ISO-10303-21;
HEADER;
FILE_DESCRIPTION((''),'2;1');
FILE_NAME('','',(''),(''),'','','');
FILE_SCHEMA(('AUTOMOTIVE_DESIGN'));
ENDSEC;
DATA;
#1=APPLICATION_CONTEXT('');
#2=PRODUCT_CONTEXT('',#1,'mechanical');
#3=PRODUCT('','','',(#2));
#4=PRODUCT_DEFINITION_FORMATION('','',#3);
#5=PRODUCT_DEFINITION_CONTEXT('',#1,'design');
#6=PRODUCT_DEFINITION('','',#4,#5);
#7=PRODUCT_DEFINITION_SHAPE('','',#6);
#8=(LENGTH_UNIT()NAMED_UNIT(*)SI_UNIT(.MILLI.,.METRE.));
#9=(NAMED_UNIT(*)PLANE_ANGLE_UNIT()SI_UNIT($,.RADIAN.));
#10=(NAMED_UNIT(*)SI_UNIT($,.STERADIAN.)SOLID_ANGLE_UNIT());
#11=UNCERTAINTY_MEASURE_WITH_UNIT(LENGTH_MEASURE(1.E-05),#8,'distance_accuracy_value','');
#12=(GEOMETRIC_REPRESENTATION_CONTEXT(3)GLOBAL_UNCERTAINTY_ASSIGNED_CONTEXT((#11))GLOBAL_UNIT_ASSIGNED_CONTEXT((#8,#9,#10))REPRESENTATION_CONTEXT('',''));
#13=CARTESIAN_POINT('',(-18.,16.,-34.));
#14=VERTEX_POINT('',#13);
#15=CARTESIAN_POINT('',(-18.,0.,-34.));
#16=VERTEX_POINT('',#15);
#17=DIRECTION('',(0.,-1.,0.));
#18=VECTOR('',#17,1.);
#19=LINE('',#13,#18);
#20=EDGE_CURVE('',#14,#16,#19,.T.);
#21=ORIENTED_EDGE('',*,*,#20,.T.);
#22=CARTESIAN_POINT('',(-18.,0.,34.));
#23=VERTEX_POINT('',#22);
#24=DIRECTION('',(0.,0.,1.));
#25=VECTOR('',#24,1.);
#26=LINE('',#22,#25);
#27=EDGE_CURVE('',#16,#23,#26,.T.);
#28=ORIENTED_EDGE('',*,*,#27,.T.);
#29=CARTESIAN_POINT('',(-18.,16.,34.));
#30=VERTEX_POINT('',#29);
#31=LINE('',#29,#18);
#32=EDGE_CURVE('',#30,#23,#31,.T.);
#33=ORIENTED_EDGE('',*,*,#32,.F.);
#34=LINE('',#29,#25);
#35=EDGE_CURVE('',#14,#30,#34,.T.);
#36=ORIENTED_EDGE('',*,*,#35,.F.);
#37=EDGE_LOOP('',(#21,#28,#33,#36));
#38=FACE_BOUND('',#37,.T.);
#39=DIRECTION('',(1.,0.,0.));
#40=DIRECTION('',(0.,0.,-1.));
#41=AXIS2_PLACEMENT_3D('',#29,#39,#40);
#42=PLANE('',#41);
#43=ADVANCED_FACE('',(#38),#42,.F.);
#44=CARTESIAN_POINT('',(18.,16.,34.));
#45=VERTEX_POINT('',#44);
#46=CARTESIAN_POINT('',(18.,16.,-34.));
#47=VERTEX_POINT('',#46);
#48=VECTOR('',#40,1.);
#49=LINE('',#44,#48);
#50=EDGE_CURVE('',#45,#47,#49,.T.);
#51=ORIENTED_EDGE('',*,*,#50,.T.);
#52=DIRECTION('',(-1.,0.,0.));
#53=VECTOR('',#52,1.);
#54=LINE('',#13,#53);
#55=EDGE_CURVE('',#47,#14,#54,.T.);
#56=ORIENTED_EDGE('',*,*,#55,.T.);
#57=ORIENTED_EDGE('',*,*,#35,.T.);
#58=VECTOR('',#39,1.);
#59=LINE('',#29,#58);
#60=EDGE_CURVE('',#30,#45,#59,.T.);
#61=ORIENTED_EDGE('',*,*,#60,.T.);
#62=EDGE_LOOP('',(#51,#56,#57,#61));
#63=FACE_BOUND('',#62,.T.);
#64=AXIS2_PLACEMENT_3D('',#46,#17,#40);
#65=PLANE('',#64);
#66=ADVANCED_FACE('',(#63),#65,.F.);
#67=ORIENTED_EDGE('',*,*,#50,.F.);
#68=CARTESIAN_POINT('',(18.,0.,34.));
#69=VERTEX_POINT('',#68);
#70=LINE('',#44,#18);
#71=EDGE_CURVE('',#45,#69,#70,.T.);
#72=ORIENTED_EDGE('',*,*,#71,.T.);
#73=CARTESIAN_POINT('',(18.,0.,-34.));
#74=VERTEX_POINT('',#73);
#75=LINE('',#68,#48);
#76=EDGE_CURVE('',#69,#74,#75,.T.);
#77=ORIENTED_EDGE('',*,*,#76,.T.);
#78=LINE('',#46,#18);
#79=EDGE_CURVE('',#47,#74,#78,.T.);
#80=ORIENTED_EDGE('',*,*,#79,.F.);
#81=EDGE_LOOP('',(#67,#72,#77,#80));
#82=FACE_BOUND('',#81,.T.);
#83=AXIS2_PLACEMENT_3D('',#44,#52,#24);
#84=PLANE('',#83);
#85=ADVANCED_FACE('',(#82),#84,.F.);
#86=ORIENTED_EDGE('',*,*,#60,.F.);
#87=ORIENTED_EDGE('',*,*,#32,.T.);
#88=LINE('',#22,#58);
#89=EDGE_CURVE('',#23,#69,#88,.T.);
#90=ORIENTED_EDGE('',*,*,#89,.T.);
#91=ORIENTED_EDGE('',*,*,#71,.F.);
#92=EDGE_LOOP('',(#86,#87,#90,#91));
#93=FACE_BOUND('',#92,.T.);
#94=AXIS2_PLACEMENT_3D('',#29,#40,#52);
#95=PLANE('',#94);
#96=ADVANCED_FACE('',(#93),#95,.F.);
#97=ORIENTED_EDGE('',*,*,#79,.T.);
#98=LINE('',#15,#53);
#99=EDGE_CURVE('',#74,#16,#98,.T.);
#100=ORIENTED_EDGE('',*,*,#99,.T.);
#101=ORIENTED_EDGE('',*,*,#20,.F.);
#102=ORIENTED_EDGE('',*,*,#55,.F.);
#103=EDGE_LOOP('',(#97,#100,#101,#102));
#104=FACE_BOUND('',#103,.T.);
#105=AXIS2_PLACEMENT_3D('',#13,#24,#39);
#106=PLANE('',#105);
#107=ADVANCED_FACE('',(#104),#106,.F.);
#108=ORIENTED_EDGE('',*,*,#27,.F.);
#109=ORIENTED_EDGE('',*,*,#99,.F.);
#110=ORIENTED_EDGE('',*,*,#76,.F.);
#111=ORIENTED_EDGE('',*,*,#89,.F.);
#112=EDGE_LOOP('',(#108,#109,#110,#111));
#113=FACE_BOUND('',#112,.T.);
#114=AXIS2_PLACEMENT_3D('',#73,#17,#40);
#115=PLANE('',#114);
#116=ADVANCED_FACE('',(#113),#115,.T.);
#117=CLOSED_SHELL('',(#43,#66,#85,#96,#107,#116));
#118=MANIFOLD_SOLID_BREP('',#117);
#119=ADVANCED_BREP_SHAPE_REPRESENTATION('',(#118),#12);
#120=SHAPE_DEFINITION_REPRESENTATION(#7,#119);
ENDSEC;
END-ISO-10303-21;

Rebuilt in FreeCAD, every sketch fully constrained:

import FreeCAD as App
import Part
import Sketcher

V = App.Vector
Q = App.Units.Quantity

doc = App.newDocument("Part")
body = doc.addObject("PartDesign::Body", "Body")

# Sketch on XZ plane
sketch1 = body.newObject("Sketcher::SketchObject", "Sketch")
sketch1.AttachmentSupport = (doc.getObject("XZ_Plane"), [""])
sketch1.MapMode = "FlatFace"
sketch1.addGeometry([
    Part.LineSegment(V(-18, -34, 0), V(-18, 34, 0)),
    Part.LineSegment(V(-18, 34, 0), V(18, 34, 0)),
    Part.LineSegment(V(18, 34, 0), V(18, -34, 0)),
    Part.LineSegment(V(18, -34, 0), V(-18, -34, 0)),
], False)
sketch1.addConstraint([
    Sketcher.Constraint("Coincident", 0, 2, 1, 1),
    Sketcher.Constraint("Coincident", 1, 2, 2, 1),
    Sketcher.Constraint("Coincident", 2, 2, 3, 1),
    Sketcher.Constraint("Coincident", 3, 2, 0, 1),
    Sketcher.Constraint("Vertical", 0),
    Sketcher.Constraint("Horizontal", 1),
    Sketcher.Constraint("Vertical", 2),
    Sketcher.Constraint("Horizontal", 3),
    Sketcher.Constraint("Symmetric", 0, 2, 2, 2, -1, 1),
    Sketcher.Constraint("DistanceX", 1, 1, 1, 2, Q("36 mm")),
    Sketcher.Constraint("DistanceY", 0, 1, 0, 2, Q("68 mm")),
])
pad1 = body.newObject("PartDesign::Pad", "Pad")
pad1.Profile = sketch1
pad1.Length = 16
pad1.Reversed = True

doc.recompute()
